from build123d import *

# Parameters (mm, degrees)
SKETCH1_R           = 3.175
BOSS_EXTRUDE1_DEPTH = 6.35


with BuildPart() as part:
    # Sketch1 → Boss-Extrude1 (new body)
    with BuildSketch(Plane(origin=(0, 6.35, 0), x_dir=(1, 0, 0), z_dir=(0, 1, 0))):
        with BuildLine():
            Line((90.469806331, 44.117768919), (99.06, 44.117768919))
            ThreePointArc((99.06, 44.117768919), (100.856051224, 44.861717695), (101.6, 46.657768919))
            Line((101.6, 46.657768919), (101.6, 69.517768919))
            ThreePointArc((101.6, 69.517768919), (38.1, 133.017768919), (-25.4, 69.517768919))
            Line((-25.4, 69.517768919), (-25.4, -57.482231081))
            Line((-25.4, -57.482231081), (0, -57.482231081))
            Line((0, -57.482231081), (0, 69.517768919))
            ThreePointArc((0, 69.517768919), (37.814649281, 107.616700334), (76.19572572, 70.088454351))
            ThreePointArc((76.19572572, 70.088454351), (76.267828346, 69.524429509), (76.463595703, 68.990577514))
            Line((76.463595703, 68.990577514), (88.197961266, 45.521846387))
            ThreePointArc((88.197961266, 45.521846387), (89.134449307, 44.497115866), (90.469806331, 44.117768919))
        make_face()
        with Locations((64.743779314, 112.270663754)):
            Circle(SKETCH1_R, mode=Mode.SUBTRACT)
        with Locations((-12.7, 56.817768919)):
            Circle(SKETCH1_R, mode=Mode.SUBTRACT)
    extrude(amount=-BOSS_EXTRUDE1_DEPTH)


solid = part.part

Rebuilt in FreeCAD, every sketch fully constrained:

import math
import FreeCAD as App
import Part
import Sketcher
from FreeCAD import Vector
Q = App.Units.Quantity

doc = App.newDocument("Part")
body = doc.addObject("PartDesign::Body", "Body")

sketch1 = body.newObject("Sketcher::SketchObject", "Sketch")
sketch1.AttachmentSupport = (doc.getObject("XZ_Plane"), [""])
sketch1.MapMode = "FlatFace"
sketch1.AttachmentOffset = App.Placement(Vector(0, 0, -0.25 * 25.4), App.Rotation())
sketch1.addGeometry(Part.LineSegment(Vector(90.5, -44.1, 0), Vector(99.1, -44.1, 0)), False)
sketch1.addGeometry(Part.ArcOfCircle(Part.Circle(Vector(99.1, -46.7, 0), Vector(0, 0, 1), 2.5), math.radians(0), math.radians(90)), False)
sketch1.addGeometry(Part.LineSegment(Vector(101.6, -46.7, 0), Vector(101.6, -69.5, 0)), False)
sketch1.addGeometry(Part.ArcOfCircle(Part.Circle(Vector(38.1, -69.5, 0), Vector(0, 0, 1), 63.5), math.radians(180), math.radians(360)), False)
sketch1.addGeometry(Part.LineSegment(Vector(-25.4, -69.5, 0), Vector(-25.4, 57.5, 0)), False)
sketch1.addGeometry(Part.LineSegment(Vector(-25.4, 57.5, 0), Vector(0, 57.5, 0)), False)
sketch1.addGeometry(Part.LineSegment(Vector(0, 57.5, 0), Vector(0, -69.5, 0)), False)
sketch1.addGeometry(Part.ArcOfCircle(Part.Circle(Vector(38.1, -69.5, 0), Vector(0, 0, 1), 38.1), math.radians(180), math.radians(359)), False)
sketch1.addGeometry(Part.ArcOfCircle(Part.Circle(Vector(78.7, -70.1, 0), Vector(0, 0, 1), 2.5), math.radians(153), math.radians(179)), False)
sketch1.addGeometry(Part.LineSegment(Vector(76.5, -69, 0), Vector(88.2, -45.5, 0)), False)
sketch1.addGeometry(Part.ArcOfCircle(Part.Circle(Vector(90.5, -46.7, 0), Vector(0, 0, 1), 2.5), math.radians(90), math.radians(153)), False)
sketch1.addGeometry(Part.Circle(Vector(-12.7, -56.8, 0), Vector(0, 0, 1), 3.2), False)
sketch1.addGeometry(Part.Circle(Vector(64.7, -112.3, 0), Vector(0, 0, 1), 3.2), False)
sketch1.addConstraint(Sketcher.Constraint("Tangent", 0, 2, 1, 2))
sketch1.addConstraint(Sketcher.Constraint("Tangent", 1, 1, 2, 1))
sketch1.addConstraint(Sketcher.Constraint("Tangent", 2, 2, 3, 2))
sketch1.addConstraint(Sketcher.Constraint("Tangent", 3, 1, 4, 1))
sketch1.addConstraint(Sketcher.Constraint("Coincident", 4, 2, 5, 1))
sketch1.addConstraint(Sketcher.Constraint("Coincident", 5, 2, 6, 1))
sketch1.addConstraint(Sketcher.Constraint("Tangent", 6, 2, 7, 1))
sketch1.addConstraint(Sketcher.Constraint("Tangent", 7, 2, 8, 2))
sketch1.addConstraint(Sketcher.Constraint("Tangent", 8, 1, 9, 1))
sketch1.addConstraint(Sketcher.Constraint("Tangent", 9, 2, 10, 2))
sketch1.addConstraint(Sketcher.Constraint("Tangent", 10, 1, 0, 1))
sketch1.addConstraint(Sketcher.Constraint("Horizontal", 0))
sketch1.addConstraint(Sketcher.Constraint("Vertical", 2))
sketch1.addConstraint(Sketcher.Constraint("Vertical", 4))
sketch1.addConstraint(Sketcher.Constraint("Horizontal", 5))
sketch1.addConstraint(Sketcher.Constraint("Vertical", 6))
sketch1.addConstraint(Sketcher.Constraint("Coincident", 7, 3, 3, 3))
sketch1.addConstraint(Sketcher.Constraint("Equal", 1, 8))
sketch1.addConstraint(Sketcher.Constraint("Equal", 8, 10))
sketch1.addConstraint(Sketcher.Constraint("Equal", 11, 12))
sketch1.addConstraint(Sketcher.Constraint("PointOnObject", 5, 2, -2))
sketch1.addConstraint(Sketcher.Constraint("Radius", 1, Q("0.1 in")))
sketch1.addConstraint(Sketcher.Constraint("Radius", 3, Q("2.5 in")))
sketch1.addConstraint(Sketcher.Constraint("Radius", 7, Q("1.5 in")))
sketch1.addConstraint(Sketcher.Constraint("Diameter", 11, Q("0.25 in")))
sketch1.addConstraint(Sketcher.Constraint("DistanceY", 4, 1, 4, 2, Q("5 in")))
sketch1.addConstraint(Sketcher.Constraint("DistanceY", 2, 2, 2, 1, Q("0.9 in")))
sketch1.addConstraint(Sketcher.Constraint("DistanceX", 11, 3, 3, 3, Q("2 in")))
sketch1.addConstraint(Sketcher.Constraint("DistanceY", 3, 3, 11, 3, Q("0.5 in")))
sketch1.addConstraint(Sketcher.Constraint("DistanceY", 8, 3, -1, 1, 70.1265))
sketch1.addConstraint(Sketcher.Constraint("Distance", 9, 26.238839))
sketch1.addConstraint(Sketcher.Constraint("DistanceX", 0, 1, 0, 2, 8.590194))
sketch1.addConstraint(Sketcher.Constraint("DistanceX", -1, 1, 12, 3, 64.743779))
sketch1.addConstraint(Sketcher.Constraint("DistanceY", 12, 3, -1, 1, 112.270664))
pad1 = body.newObject("PartDesign::Pad", "Pad")
pad1.Profile = sketch1
pad1.Length = Q("0.25 in")

doc.recompute()
